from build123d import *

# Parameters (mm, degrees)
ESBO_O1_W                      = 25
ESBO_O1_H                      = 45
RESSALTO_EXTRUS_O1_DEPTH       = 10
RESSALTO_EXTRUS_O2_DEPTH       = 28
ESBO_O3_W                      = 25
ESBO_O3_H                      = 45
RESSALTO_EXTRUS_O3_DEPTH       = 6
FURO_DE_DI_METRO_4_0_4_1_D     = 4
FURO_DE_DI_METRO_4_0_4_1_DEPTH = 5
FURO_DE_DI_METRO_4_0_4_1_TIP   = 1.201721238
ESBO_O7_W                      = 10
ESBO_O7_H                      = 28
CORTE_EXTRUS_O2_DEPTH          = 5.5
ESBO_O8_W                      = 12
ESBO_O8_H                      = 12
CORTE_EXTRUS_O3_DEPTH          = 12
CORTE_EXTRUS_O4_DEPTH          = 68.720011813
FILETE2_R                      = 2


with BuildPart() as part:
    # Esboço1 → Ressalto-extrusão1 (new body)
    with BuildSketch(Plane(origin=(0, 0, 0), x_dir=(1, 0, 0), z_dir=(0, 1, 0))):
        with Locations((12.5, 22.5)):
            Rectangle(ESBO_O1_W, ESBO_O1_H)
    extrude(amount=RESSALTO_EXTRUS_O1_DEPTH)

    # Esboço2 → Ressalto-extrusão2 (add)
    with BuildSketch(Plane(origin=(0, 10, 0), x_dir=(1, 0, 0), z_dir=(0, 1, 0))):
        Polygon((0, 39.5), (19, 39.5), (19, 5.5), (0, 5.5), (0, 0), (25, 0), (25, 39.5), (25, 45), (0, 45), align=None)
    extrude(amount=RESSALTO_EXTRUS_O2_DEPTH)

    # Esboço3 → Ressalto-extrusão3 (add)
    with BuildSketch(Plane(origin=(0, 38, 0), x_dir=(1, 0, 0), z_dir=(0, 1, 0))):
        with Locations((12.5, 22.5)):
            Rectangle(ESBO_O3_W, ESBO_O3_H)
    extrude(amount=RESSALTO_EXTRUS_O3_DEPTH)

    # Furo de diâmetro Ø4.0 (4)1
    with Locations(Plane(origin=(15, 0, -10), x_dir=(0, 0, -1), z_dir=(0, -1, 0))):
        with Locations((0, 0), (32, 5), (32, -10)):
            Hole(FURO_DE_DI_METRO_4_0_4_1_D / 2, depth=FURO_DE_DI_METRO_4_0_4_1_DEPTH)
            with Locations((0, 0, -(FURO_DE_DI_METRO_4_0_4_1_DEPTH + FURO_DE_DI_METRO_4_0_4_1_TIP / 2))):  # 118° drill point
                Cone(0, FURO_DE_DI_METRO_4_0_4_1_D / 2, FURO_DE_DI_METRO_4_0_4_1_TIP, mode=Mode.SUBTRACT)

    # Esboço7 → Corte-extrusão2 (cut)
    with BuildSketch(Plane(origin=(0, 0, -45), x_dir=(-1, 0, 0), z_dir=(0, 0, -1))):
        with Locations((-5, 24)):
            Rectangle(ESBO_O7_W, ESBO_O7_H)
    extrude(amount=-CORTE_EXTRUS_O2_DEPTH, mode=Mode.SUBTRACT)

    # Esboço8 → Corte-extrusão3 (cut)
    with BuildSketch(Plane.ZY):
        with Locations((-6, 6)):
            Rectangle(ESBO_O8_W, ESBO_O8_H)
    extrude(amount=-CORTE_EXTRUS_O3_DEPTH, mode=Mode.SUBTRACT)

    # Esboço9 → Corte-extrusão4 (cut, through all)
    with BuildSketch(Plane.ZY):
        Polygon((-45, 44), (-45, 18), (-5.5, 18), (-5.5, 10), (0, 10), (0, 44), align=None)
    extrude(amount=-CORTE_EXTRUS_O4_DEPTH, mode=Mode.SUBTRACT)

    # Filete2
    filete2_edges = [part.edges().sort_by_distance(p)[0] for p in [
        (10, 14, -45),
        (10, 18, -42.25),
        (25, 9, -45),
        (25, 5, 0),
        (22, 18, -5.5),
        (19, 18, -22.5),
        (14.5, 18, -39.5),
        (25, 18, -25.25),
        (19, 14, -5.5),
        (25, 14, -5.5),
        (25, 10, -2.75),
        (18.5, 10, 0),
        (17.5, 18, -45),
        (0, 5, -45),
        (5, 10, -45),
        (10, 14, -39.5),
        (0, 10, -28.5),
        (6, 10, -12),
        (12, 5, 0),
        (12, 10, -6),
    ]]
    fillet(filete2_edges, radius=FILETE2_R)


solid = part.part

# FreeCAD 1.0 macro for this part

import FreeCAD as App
import Part
import Sketcher
from FreeCAD import Vector
Q = App.Units.Quantity


def edges_at(feature, points):
    """Names of the edges that pass closest to the given points."""
    edges = feature.Shape.Edges
    near = lambda p: min(range(len(edges)), key=lambda i: edges[i].distToShape(Part.Vertex(*p))[0])
    return sorted({f"Edge{near(p) + 1}" for p in points})

doc = App.newDocument("Part")
body = doc.addObject("PartDesign::Body", "Body")

# Sketch on XZ plane
sketch1 = body.newObject("Sketcher::SketchObject", "Sketch")
sketch1.AttachmentSupport = (doc.getObject("XZ_Plane"), [""])
sketch1.MapMode = "FlatFace"
sketch1.addGeometry([
    Part.LineSegment(Vector(0, -45, 0), Vector(0, 0, 0)),
    Part.LineSegment(Vector(0, 0, 0), Vector(25, 0, 0)),
    Part.LineSegment(Vector(25, 0, 0), Vector(25, -45, 0)),
    Part.LineSegment(Vector(25, -45, 0), Vector(0, -45, 0)),
], False)
sketch1.addConstraint([
    Sketcher.Constraint("Coincident", 0, 2, 1, 1),
    Sketcher.Constraint("Coincident", 1, 2, 2, 1),
    Sketcher.Constraint("Coincident", 2, 2, 3, 1),
    Sketcher.Constraint("Coincident", 3, 2, 0, 1),
    Sketcher.Constraint("Vertical", 0),
    Sketcher.Constraint("Horizontal", 1),
    Sketcher.Constraint("Vertical", 2),
    Sketcher.Constraint("Horizontal", 3),
    Sketcher.Constraint("Coincident", 0, 2, -1, 1),
    Sketcher.Constraint("DistanceX", 1, 1, 1, 2, Q("25 mm")),
    Sketcher.Constraint("DistanceY", 0, 1, 0, 2, Q("45 mm")),
])
pad1 = body.newObject("PartDesign::Pad", "Pad")
pad1.Profile = sketch1
pad1.Length = 10
pad1.Reversed = True

# Sketch on XZ plane
sketch2 = body.newObject("Sketcher::SketchObject", "Sketch001")
sketch2.AttachmentSupport = (doc.getObject("XZ_Plane"), [""])
sketch2.MapMode = "FlatFace"
sketch2.AttachmentOffset = App.Placement(Vector(0, 0, -10), App.Rotation())
sketch2.addGeometry([
    Part.LineSegment(Vector(0, -39.5, 0), Vector(19, -39.5, 0)),  # 0
    Part.LineSegment(Vector(19, -39.5, 0), Vector(19, -5.5, 0)),  # 1
    Part.LineSegment(Vector(19, -5.5, 0), Vector(0, -5.5, 0)),  # 2
    Part.LineSegment(Vector(0, -5.5, 0), Vector(0, 0, 0)),  # 3
    Part.LineSegment(Vector(0, 0, 0), Vector(25, 0, 0)),  # 4
    Part.LineSegment(Vector(25, 0, 0), Vector(25, -45, 0)),  # 5
    Part.LineSegment(Vector(25, -45, 0), Vector(0, -45, 0)),  # 6
    Part.LineSegment(Vector(0, -45, 0), Vector(0, -39.5, 0)),  # 7
], False)
sketch2.addConstraint([
    Sketcher.Constraint("Coincident", 0, 2, 1, 1),
    Sketcher.Constraint("Coincident", 1, 2, 2, 1),
    Sketcher.Constraint("Coincident", 2, 2, 3, 1),
    Sketcher.Constraint("Coincident", 3, 2, 4, 1),
    Sketcher.Constraint("Coincident", 4, 2, 5, 1),
    Sketcher.Constraint("Coincident", 5, 2, 6, 1),
    Sketcher.Constraint("Coincident", 6, 2, 7, 1),
    Sketcher.Constraint("Coincident", 7, 2, 0, 1),
    Sketcher.Constraint("Horizontal", 0),
    Sketcher.Constraint("Vertical", 1),
    Sketcher.Constraint("Horizontal", 2),
    Sketcher.Constraint("Vertical", 3),
    Sketcher.Constraint("Horizontal", 4),
    Sketcher.Constraint("Vertical", 5),
    Sketcher.Constraint("Horizontal", 6),
    Sketcher.Constraint("Vertical", 7),
    Sketcher.Constraint("Coincident", 3, 2, -1, 1),
    Sketcher.Constraint("PointOnObject", 6, 2, -2),
    Sketcher.Constraint("Equal", 3, 7),
    Sketcher.Constraint("DistanceX", 0, 1, 0, 2, Q("19 mm")),
    Sketcher.Constraint("DistanceX", 4, 1, 4, 2, Q("25 mm")),
    Sketcher.Constraint("DistanceY", 1, 1, 1, 2, Q("34 mm")),
    Sketcher.Constraint("DistanceY", 5, 2, 5, 1, Q("45 mm")),
])
pad2 = body.newObject("PartDesign::Pad", "Pad001")
pad2.Profile = sketch2
pad2.Length = 28
pad2.Reversed = True

# Sketch on XZ plane
sketch3 = body.newObject("Sketcher::SketchObject", "Sketch002")
sketch3.AttachmentSupport = (doc.getObject("XZ_Plane"), [""])
sketch3.MapMode = "FlatFace"
sketch3.AttachmentOffset = App.Placement(Vector(0, 0, -38), App.Rotation())
sketch3.addGeometry([
    Part.LineSegment(Vector(0, -45, 0), Vector(0, 0, 0)),
    Part.LineSegment(Vector(0, 0, 0), Vector(25, 0, 0)),
    Part.LineSegment(Vector(25, 0, 0), Vector(25, -45, 0)),
    Part.LineSegment(Vector(25, -45, 0), Vector(0, -45, 0)),
], False)
sketch3.addConstraint([
    Sketcher.Constraint("Coincident", 0, 2, 1, 1),
    Sketcher.Constraint("Coincident", 1, 2, 2, 1),
    Sketcher.Constraint("Coincident", 2, 2, 3, 1),
    Sketcher.Constraint("Coincident", 3, 2, 0, 1),
    Sketcher.Constraint("Vertical", 0),
    Sketcher.Constraint("Horizontal", 1),
    Sketcher.Constraint("Vertical", 2),
    Sketcher.Constraint("Horizontal", 3),
    Sketcher.Constraint("Coincident", 0, 2, -1, 1),
    Sketcher.Constraint("DistanceX", 1, 1, 1, 2, Q("25 mm")),
    Sketcher.Constraint("DistanceY", 0, 1, 0, 2, Q("45 mm")),
])
pad3 = body.newObject("PartDesign::Pad", "Pad002")
pad3.Profile = sketch3
pad3.Length = 6
pad3.Reversed = True

# Sketch on XZ plane
sketch4 = body.newObject("Sketcher::SketchObject", "Sketch003")
sketch4.AttachmentSupport = (doc.getObject("XZ_Plane"), [""])
sketch4.MapMode = "FlatFace"
sketch4.addGeometry([
    Part.Circle(Vector(15, -10, 0), Vector(0, 0, 1), 2),
    Part.Circle(Vector(20, -42, 0), Vector(0, 0, 1), 2),
    Part.Circle(Vector(5, -42, 0), Vector(0, 0, 1), 2),
], False)
sketch4.addConstraint([
    Sketcher.Constraint("Equal", 0, 1),
    Sketcher.Constraint("Equal", 1, 2),
    Sketcher.Constraint("Horizontal", 1, 3, 2, 3),
    Sketcher.Constraint("Diameter", 0, Q("4 mm")),
    Sketcher.Constraint("DistanceX", -1, 1, 0, 3, Q("15 mm")),
    Sketcher.Constraint("DistanceY", 0, 3, -1, 1, Q("10 mm")),
    Sketcher.Constraint("DistanceX", -1, 1, 1, 3, Q("20 mm")),
    Sketcher.Constraint("DistanceY", 1, 3, -1, 1, Q("42 mm")),
    Sketcher.Constraint("DistanceX", -1, 1, 2, 3, Q("5 mm")),
])
doc.recompute()
hole = body.newObject("PartDesign::Hole", "Hole")
hole.Profile = sketch4
hole.ThreadType = "None"
hole.Diameter = 4
hole.DepthType = "Dimension"
hole.Depth = 5
hole.DrillPoint = "Angled"
hole.DrillPointAngle = 118

# Sketch on XY plane
sketch5 = body.newObject("Sketcher::SketchObject", "Sketch004")
sketch5.AttachmentSupport = (doc.getObject("XY_Plane"), [""])
sketch5.MapMode = "FlatFace"
sketch5.AttachmentOffset = App.Placement(Vector(0, 0, -45), App.Rotation())
sketch5.addGeometry([
    Part.LineSegment(Vector(10, 38, 0), Vector(10, 10, 0)),
    Part.LineSegment(Vector(10, 10, 0), Vector(0, 10, 0)),
    Part.LineSegment(Vector(0, 10, 0), Vector(0, 38, 0)),
    Part.LineSegment(Vector(0, 38, 0), Vector(10, 38, 0)),
], False)
sketch5.addConstraint([
    Sketcher.Constraint("Coincident", 0, 2, 1, 1),
    Sketcher.Constraint("Coincident", 1, 2, 2, 1),
    Sketcher.Constraint("Coincident", 2, 2, 3, 1),
    Sketcher.Constraint("Coincident", 3, 2, 0, 1),
    Sketcher.Constraint("Vertical", 0),
    Sketcher.Constraint("Horizontal", 1),
    Sketcher.Constraint("Vertical", 2),
    Sketcher.Constraint("Horizontal", 3),
    Sketcher.Constraint("PointOnObject", 1, 2, -2),
    Sketcher.Constraint("DistanceX", 1, 2, 1, 1, Q("10 mm")),
    Sketcher.Constraint("DistanceY", 0, 2, 0, 1, Q("28 mm")),
    Sketcher.Constraint("DistanceY", -1, 1, 0, 2, Q("10 mm")),
])
pocket1 = body.newObject("PartDesign::Pocket", "Pocket")
pocket1.Profile = sketch5
pocket1.Length = 5.5
pocket1.Reversed = True

# Sketch on YZ plane
sketch6 = body.newObject("Sketcher::SketchObject", "Sketch005")
sketch6.AttachmentSupport = (doc.getObject("YZ_Plane"), [""])
sketch6.MapMode = "FlatFace"
sketch6.addGeometry([
    Part.LineSegment(Vector(12, -12, 0), Vector(0, -12, 0)),
    Part.LineSegment(Vector(0, -12, 0), Vector(0, 0, 0)),
    Part.LineSegment(Vector(0, 0, 0), Vector(12, 0, 0)),
    Part.LineSegment(Vector(12, 0, 0), Vector(12, -12, 0)),
], False)
sketch6.addConstraint([
    Sketcher.Constraint("Coincident", 0, 2, 1, 1),
    Sketcher.Constraint("Coincident", 1, 2, 2, 1),
    Sketcher.Constraint("Coincident", 2, 2, 3, 1),
    Sketcher.Constraint("Coincident", 3, 2, 0, 1),
    Sketcher.Constraint("Horizontal", 0),
    Sketcher.Constraint("Vertical", 1),
    Sketcher.Constraint("Horizontal", 2),
    Sketcher.Constraint("Vertical", 3),
    Sketcher.Constraint("Coincident", 1, 2, -1, 1),
    Sketcher.Constraint("Equal", 2, 1),
    Sketcher.Constraint("DistanceX", 0, 2, 0, 1, Q("12 mm")),
])
pocket2 = body.newObject("PartDesign::Pocket", "Pocket001")
pocket2.Profile = sketch6
pocket2.Length = 12
pocket2.Reversed = True

# Sketch on YZ plane
sketch7 = body.newObject("Sketcher::SketchObject", "Sketch006")
sketch7.AttachmentSupport = (doc.getObject("YZ_Plane"), [""])
sketch7.MapMode = "FlatFace"
sketch7.addGeometry([
    Part.LineSegment(Vector(44, -45, 0), Vector(18, -45, 0)),  # 0
    Part.LineSegment(Vector(18, -45, 0), Vector(18, -5.5, 0)),  # 1
    Part.LineSegment(Vector(18, -5.5, 0), Vector(10, -5.5, 0)),  # 2
    Part.LineSegment(Vector(10, -5.5, 0), Vector(10, 0, 0)),  # 3
    Part.LineSegment(Vector(10, 0, 0), Vector(44, 0, 0)),  # 4
    Part.LineSegment(Vector(44, 0, 0), Vector(44, -45, 0)),  # 5
], False)
sketch7.addConstraint([
    Sketcher.Constraint("Coincident", 0, 2, 1, 1),
    Sketcher.Constraint("Coincident", 1, 2, 2, 1),
    Sketcher.Constraint("Coincident", 2, 2, 3, 1),
    Sketcher.Constraint("Coincident", 3, 2, 4, 1),
    Sketcher.Constraint("Coincident", 4, 2, 5, 1),
    Sketcher.Constraint("Coincident", 5, 2, 0, 1),
    Sketcher.Constraint("Horizontal", 0),
    Sketcher.Constraint("Vertical", 1),
    Sketcher.Constraint("Horizontal", 2),
    Sketcher.Constraint("Vertical", 3),
    Sketcher.Constraint("Horizontal", 4),
    Sketcher.Constraint("Vertical", 5),
    Sketcher.Constraint("PointOnObject", 3, 2, -1),
    Sketcher.Constraint("DistanceX", 0, 2, 0, 1, Q("26 mm")),
    Sketcher.Constraint("DistanceX", 2, 2, 2, 1, Q("8 mm")),
    Sketcher.Constraint("DistanceY", 5, 2, 5, 1, Q("45 mm")),
    Sketcher.Constraint("DistanceY", 1, 1, 1, 2, Q("39.5 mm")),
    Sketcher.Constraint("DistanceX", -1, 1, 0, 2, Q("18 mm")),
])
pocket3 = body.newObject("PartDesign::Pocket", "Pocket002")
pocket3.Profile = sketch7
pocket3.Type = "ThroughAll"
pocket3.Reversed = True
doc.recompute()

fillet = body.newObject("PartDesign::Fillet", "Fillet")
fillet.Base = (pocket3, edges_at(pocket3, [
    (10, 14, -45),
    (10, 18, -42.25),
    (25, 9, -45),
    (25, 5, 0),
    (22, 18, -5.5),
    (19, 18, -22.5),
    (14.5, 18, -39.5),
    (25, 18, -25.25),
    (19, 14, -5.5),
    (25, 14, -5.5),
    (25, 10, -2.75),
    (18.5, 10, 0),
    (17.5, 18, -45),
    (0, 5, -45),
    (5, 10, -45),
    (10, 14, -39.5),
    (0, 10, -28.5),
    (6, 10, -12),
    (12, 5, 0),
    (12, 10, -6),
]))
fillet.Radius = 2

doc.recompute()
